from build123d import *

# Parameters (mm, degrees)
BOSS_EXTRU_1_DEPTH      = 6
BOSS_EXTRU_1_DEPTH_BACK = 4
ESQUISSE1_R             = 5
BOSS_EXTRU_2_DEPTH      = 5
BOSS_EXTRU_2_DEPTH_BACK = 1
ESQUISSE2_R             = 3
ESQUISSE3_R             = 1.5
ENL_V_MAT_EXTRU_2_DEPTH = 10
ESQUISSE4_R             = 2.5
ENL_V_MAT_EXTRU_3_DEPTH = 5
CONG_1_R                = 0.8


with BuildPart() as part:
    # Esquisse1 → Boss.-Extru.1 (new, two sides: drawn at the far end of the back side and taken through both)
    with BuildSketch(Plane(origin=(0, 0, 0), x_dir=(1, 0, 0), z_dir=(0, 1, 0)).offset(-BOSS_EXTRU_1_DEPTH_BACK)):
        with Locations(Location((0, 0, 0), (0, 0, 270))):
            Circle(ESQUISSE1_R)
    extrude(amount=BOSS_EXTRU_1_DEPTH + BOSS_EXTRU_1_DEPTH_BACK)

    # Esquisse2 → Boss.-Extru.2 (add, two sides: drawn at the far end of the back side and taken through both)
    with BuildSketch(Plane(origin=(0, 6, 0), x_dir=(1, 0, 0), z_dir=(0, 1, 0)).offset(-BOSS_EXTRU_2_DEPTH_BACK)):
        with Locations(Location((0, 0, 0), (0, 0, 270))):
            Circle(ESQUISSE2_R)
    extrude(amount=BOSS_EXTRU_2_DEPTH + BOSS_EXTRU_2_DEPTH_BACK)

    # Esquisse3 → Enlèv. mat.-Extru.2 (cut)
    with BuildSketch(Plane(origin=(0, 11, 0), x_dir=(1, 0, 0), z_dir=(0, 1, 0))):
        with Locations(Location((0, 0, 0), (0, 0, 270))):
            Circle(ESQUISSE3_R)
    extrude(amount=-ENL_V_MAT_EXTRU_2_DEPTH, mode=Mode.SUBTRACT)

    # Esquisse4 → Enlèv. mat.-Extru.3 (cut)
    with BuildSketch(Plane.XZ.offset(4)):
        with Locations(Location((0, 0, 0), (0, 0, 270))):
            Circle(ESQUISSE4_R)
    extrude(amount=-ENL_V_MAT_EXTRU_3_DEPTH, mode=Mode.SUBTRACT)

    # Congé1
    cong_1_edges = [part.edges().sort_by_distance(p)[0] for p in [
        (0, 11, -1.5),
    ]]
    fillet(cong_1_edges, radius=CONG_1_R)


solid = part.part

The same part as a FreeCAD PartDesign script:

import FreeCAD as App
import Part
import Sketcher


def edges_at(feature, points):
    """Names of the edges that pass closest to the given points."""
    edges = feature.Shape.Edges
    near = lambda p: min(range(len(edges)), key=lambda i: edges[i].distToShape(Part.Vertex(*p))[0])
    return sorted({f"Edge{near(p) + 1}" for p in points})

doc = App.newDocument("Part")
body = doc.addObject("PartDesign::Body", "Body")

sketch1 = body.newObject("Sketcher::SketchObject", "Sketch")
sketch1.AttachmentSupport = (doc.getObject("XZ_Plane"), [""])
sketch1.MapMode = "FlatFace"
sketch1.addGeometry(Part.Circle(App.Vector(0, 0, 0), App.Vector(0, 0, 1), 5), False)
sketch1.addConstraint(Sketcher.Constraint("Coincident", 0, 3, -1, 1))
sketch1.addConstraint(Sketcher.Constraint("Diameter", 0, 10.0))
pad1 = body.newObject("PartDesign::Pad", "Pad")
pad1.Profile = sketch1
pad1.Type = "TwoLengths"
pad1.Length = 6
pad1.Length2 = 4
pad1.Reversed = True

sketch2 = body.newObject("Sketcher::SketchObject", "Sketch001")
sketch2.AttachmentSupport = (doc.getObject("XZ_Plane"), [""])
sketch2.MapMode = "FlatFace"
sketch2.AttachmentOffset = App.Placement(App.Vector(0, 0, -6), App.Rotation())
sketch2.addGeometry(Part.Circle(App.Vector(0, 0, 0), App.Vector(0, 0, 1), 3), False)
sketch2.addConstraint(Sketcher.Constraint("Coincident", 0, 3, -1, 1))
sketch2.addConstraint(Sketcher.Constraint("Diameter", 0, 6.0))
pad2 = body.newObject("PartDesign::Pad", "Pad001")
pad2.Profile = sketch2
pad2.Type = "TwoLengths"
pad2.Length = 5
pad2.Length2 = 1
pad2.Reversed = True

sketch3 = body.newObject("Sketcher::SketchObject", "Sketch002")
sketch3.AttachmentSupport = (doc.getObject("XZ_Plane"), [""])
sketch3.MapMode = "FlatFace"
sketch3.AttachmentOffset = App.Placement(App.Vector(0, 0, -11), App.Rotation())
sketch3.addGeometry(Part.Circle(App.Vector(0, 0, 0), App.Vector(0, 0, 1), 1.5), False)
sketch3.addConstraint(Sketcher.Constraint("Coincident", 0, 3, -1, 1))
sketch3.addConstraint(Sketcher.Constraint("Diameter", 0, 3.0))
pocket1 = body.newObject("PartDesign::Pocket", "Pocket")
pocket1.Profile = sketch3
pocket1.Length = 10
pocket1.Reversed = True

sketch4 = body.newObject("Sketcher::SketchObject", "Sketch003")
sketch4.AttachmentSupport = (doc.getObject("XZ_Plane"), [""])
sketch4.MapMode = "FlatFace"
sketch4.AttachmentOffset = App.Placement(App.Vector(0, 0, 4), App.Rotation())
sketch4.addGeometry(Part.Circle(App.Vector(0, 0, 0), App.Vector(0, 0, 1), 2.5), False)
sketch4.addConstraint(Sketcher.Constraint("Coincident", 0, 3, -1, 1))
sketch4.addConstraint(Sketcher.Constraint("Diameter", 0, 5.0))
pocket2 = body.newObject("PartDesign::Pocket", "Pocket001")
pocket2.Profile = sketch4
pocket2.Length = 5
doc.recompute()

fillet = body.newObject("PartDesign::Fillet", "Fillet")
fillet.Base = (pocket2, edges_at(pocket2, [(0, 11, -1.5)]))
fillet.Radius = 0.8

doc.recompute()
